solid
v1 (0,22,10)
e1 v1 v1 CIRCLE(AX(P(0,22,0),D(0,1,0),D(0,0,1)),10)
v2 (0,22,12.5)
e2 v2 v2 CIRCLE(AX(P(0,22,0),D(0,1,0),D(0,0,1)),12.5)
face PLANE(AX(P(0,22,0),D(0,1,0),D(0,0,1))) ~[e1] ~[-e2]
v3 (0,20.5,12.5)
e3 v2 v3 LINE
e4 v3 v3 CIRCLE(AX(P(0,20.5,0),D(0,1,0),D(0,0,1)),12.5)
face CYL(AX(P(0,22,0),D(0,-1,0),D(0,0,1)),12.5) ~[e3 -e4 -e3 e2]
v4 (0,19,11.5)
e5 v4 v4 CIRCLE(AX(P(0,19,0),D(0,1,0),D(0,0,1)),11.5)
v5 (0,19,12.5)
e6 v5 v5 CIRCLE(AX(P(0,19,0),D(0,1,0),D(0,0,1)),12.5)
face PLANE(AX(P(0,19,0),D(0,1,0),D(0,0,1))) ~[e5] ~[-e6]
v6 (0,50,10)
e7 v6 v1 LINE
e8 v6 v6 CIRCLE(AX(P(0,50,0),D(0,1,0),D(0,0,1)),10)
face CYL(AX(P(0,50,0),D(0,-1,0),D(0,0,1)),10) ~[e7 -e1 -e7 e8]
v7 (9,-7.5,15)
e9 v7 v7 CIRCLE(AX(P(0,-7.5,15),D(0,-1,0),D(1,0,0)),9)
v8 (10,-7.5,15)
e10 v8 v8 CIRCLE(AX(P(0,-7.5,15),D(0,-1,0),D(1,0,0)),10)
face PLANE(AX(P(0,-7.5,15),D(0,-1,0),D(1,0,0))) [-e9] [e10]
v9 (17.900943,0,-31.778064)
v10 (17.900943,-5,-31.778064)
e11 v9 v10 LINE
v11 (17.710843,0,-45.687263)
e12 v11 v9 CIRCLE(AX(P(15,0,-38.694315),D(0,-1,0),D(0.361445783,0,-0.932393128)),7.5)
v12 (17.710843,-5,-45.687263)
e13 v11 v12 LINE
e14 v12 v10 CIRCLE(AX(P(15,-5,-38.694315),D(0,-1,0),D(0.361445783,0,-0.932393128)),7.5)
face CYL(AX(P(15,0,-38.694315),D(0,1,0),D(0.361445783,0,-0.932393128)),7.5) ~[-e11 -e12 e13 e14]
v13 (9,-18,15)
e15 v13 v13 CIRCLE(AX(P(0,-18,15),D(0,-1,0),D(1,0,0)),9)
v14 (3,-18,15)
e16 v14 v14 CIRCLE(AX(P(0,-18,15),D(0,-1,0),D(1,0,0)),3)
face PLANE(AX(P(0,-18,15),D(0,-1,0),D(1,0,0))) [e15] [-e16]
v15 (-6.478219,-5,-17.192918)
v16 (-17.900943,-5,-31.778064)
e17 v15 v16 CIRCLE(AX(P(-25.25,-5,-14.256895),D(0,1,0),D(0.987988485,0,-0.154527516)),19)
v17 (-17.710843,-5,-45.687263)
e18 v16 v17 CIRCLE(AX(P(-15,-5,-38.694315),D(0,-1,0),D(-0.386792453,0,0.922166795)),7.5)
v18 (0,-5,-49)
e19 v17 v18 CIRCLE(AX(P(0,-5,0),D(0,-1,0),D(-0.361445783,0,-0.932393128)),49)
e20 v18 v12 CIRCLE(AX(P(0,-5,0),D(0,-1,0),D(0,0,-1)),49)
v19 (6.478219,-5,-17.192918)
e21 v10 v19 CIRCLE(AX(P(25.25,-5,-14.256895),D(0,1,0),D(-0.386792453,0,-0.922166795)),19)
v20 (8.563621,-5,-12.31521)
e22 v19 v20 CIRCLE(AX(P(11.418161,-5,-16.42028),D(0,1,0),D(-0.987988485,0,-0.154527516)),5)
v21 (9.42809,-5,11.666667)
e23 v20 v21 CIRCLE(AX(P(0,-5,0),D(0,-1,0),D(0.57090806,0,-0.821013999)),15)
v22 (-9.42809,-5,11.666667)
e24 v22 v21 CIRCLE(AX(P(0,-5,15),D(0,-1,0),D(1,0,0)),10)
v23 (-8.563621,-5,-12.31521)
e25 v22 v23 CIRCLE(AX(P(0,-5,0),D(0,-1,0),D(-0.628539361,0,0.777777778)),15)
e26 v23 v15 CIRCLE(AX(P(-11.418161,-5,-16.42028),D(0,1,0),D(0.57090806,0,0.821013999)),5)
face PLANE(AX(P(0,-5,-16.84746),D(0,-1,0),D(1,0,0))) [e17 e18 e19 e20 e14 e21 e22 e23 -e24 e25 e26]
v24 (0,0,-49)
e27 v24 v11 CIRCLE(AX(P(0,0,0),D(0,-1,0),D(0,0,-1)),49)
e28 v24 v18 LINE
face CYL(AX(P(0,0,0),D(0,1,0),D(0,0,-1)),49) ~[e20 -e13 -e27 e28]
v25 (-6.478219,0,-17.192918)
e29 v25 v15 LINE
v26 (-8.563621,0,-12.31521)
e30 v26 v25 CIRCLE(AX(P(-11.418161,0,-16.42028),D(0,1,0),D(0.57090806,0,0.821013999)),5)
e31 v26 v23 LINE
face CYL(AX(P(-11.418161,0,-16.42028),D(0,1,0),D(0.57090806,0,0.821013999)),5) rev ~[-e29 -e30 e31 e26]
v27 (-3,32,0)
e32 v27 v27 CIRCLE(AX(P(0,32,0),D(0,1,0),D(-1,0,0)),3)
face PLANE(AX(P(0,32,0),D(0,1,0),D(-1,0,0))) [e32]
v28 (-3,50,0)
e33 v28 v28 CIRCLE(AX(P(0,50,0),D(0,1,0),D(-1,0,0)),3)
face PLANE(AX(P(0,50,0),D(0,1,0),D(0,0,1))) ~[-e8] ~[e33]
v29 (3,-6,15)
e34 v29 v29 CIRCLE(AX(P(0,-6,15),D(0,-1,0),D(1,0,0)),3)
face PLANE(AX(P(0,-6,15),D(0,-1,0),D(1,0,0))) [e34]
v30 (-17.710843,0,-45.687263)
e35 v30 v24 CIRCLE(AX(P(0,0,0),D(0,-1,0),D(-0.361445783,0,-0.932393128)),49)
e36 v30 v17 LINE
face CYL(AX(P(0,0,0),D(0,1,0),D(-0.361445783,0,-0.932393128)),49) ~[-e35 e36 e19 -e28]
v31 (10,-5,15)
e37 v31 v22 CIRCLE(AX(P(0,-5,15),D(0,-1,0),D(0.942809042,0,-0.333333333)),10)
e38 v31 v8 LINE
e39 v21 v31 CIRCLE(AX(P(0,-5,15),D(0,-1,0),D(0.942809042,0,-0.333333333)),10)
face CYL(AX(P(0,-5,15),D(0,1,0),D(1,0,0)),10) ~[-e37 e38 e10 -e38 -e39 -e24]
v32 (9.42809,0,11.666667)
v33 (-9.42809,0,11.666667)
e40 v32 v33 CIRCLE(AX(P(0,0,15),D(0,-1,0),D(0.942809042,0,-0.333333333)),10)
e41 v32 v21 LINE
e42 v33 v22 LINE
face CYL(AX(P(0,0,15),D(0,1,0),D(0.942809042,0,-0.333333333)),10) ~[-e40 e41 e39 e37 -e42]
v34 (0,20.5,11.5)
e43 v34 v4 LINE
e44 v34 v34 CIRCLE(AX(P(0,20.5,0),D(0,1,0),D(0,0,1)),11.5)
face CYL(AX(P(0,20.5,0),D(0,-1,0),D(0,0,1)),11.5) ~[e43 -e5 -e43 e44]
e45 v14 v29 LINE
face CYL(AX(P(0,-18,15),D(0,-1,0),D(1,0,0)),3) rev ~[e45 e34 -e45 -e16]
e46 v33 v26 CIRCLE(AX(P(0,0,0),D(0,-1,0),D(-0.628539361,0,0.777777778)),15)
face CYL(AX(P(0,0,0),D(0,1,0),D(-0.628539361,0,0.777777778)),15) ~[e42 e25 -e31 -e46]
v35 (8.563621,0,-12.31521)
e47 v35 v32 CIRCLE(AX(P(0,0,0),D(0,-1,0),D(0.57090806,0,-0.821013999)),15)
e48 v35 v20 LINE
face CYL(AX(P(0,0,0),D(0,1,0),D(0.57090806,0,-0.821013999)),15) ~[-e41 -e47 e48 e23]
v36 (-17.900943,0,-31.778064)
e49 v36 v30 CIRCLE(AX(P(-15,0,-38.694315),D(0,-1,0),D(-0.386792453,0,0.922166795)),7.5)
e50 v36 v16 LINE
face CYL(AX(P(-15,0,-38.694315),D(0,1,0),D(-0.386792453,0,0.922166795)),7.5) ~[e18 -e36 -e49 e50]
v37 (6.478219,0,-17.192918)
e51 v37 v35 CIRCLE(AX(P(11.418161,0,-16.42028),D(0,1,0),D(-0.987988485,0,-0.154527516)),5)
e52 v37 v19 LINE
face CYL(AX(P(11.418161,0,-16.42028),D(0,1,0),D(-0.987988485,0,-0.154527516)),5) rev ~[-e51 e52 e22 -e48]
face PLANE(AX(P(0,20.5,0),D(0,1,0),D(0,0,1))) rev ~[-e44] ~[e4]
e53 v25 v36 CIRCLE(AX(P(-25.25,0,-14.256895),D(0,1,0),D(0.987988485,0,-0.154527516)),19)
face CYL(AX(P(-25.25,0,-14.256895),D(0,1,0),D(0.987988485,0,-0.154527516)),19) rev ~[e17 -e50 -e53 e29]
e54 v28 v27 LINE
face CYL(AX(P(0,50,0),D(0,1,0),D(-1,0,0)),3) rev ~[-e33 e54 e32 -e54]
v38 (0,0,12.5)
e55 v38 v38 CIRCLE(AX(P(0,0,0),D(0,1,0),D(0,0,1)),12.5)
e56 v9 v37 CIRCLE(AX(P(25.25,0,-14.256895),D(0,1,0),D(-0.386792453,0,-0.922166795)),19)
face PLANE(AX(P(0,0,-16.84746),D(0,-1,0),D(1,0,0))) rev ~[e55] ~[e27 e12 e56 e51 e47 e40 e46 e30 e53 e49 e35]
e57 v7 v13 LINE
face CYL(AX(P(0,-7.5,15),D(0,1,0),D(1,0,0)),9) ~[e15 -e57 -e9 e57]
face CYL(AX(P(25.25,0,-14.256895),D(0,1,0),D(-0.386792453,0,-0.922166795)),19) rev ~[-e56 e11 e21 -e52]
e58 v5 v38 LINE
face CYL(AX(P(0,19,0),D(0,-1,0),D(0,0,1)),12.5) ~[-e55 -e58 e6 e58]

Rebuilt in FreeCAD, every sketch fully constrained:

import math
import FreeCAD as App
import Part
import Sketcher

V = App.Vector

doc = App.newDocument("Part")
body = doc.addObject("PartDesign::Body", "Body")

# Sketch on YZ plane
sketch1 = doc.addObject("Sketcher::SketchObject", "Sketch")
body.addObject(sketch1)
sketch1.AttachmentSupport = (doc.YZ_Plane, [""])
sketch1.MapMode = "FlatFace"
sketch1.addGeometry([
    Part.LineSegment(V(19, 12.5, 0), V(0, 12.5, 0)),  # 0
    Part.LineSegment(V(0, 12.5, 0), V(0, 0, 0)),  # 1
    Part.LineSegment(V(0, 0, 0), V(50, 0, 0)),  # 2
    Part.LineSegment(V(50, 0, 0), V(50, 10, 0)),  # 3
    Part.LineSegment(V(50, 10, 0), V(22, 10, 0)),  # 4
    Part.LineSegment(V(22, 10, 0), V(22, 12.5, 0)),  # 5
    Part.LineSegment(V(22, 12.5, 0), V(20.5, 12.5, 0)),  # 6
    Part.LineSegment(V(20.5, 12.5, 0), V(20.5, 11.5, 0)),  # 7
    Part.LineSegment(V(20.5, 11.5, 0), V(19, 11.5, 0)),  # 8
    Part.LineSegment(V(19, 11.5, 0), V(19, 12.5, 0)),  # 9
], False)
sketch1.addConstraint([
    Sketcher.Constraint("Coincident", 0, 2, 1, 1),
    Sketcher.Constraint("Coincident", 1, 2, 2, 1),
    Sketcher.Constraint("Coincident", 2, 2, 3, 1),
    Sketcher.Constraint("Coincident", 3, 2, 4, 1),
    Sketcher.Constraint("Coincident", 4, 2, 5, 1),
    Sketcher.Constraint("Coincident", 5, 2, 6, 1),
    Sketcher.Constraint("Coincident", 6, 2, 7, 1),
    Sketcher.Constraint("Coincident", 7, 2, 8, 1),
    Sketcher.Constraint("Coincident", 8, 2, 9, 1),
    Sketcher.Constraint("Coincident", 9, 2, 0, 1),
    Sketcher.Constraint("Horizontal", 0),
    Sketcher.Constraint("Vertical", 1),
    Sketcher.Constraint("Horizontal", 2),
    Sketcher.Constraint("Vertical", 3),
    Sketcher.Constraint("Horizontal", 4),
    Sketcher.Constraint("Vertical", 5),
    Sketcher.Constraint("Horizontal", 6),
    Sketcher.Constraint("Vertical", 7),
    Sketcher.Constraint("Horizontal", 8),
    Sketcher.Constraint("Vertical", 9),
    Sketcher.Constraint("Coincident", 1, 2, -1, 1),
    Sketcher.Constraint("Horizontal", 0, 2, 5, 2),
    Sketcher.Constraint("Equal", 6, 8),
    Sketcher.Constraint("DistanceX", 0, 2, 0, 1, 19.0),
    Sketcher.Constraint("DistanceX", 2, 1, 2, 2, 50.0),
    Sketcher.Constraint("DistanceX", 4, 2, 4, 1, 28.0),
    Sketcher.Constraint("DistanceY", 3, 1, 3, 2, 10.0),
    Sketcher.Constraint("DistanceY", 7, 2, 7, 1, 1.0),
    Sketcher.Constraint("DistanceY", 1, 2, 1, 1, 12.5),
])
revolution = doc.addObject("PartDesign::Revolution", "Revolution")
body.addObject(revolution)
revolution.Profile = sketch1
revolution.ReferenceAxis = (sketch1, ["H_Axis"])
revolution.Angle = 360

# Sketch on XZ plane
sketch2 = doc.addObject("Sketcher::SketchObject", "Sketch001")
body.addObject(sketch2)
sketch2.AttachmentSupport = (doc.XZ_Plane, [""])
sketch2.MapMode = "FlatFace"
sketch2.addGeometry([
    Part.ArcOfCircle(Part.Circle(V(0, 15, 0), V(0, 0, 1), 10), math.radians(-19.471221), math.radians(199.471221)),  # 0
    Part.ArcOfCircle(Part.Circle(V(0, 0, 0), V(0, 0, 1), 15), math.radians(128.942441), math.radians(235.186428)),  # 1
    Part.ArcOfCircle(Part.Circle(V(-11.418161, -16.42028, 0), V(0, 0, 1), 5), math.radians(-8.889395), math.radians(55.186428)),  # 2
    Part.ArcOfCircle(Part.Circle(V(-25.25, -14.256895, 0), V(0, 0, 1), 19), math.radians(-67.244937), math.radians(-8.889395)),  # 3
    Part.ArcOfCircle(Part.Circle(V(-15, -38.694315, 0), V(0, 0, 1), 7.5), math.radians(112.755063), math.radians(248.810987)),  # 4
    Part.ArcOfCircle(Part.Circle(V(0, 0, 0), V(0, 0, 1), 49), math.radians(-111.189013), math.radians(-90)),  # 5
    Part.ArcOfCircle(Part.Circle(V(0, 0, 0), V(0, 0, 1), 49), math.radians(-90), math.radians(-68.810987)),  # 6
    Part.ArcOfCircle(Part.Circle(V(15, -38.694315, 0), V(0, 0, 1), 7.5), math.radians(-68.810987), math.radians(67.244937)),  # 7
    Part.ArcOfCircle(Part.Circle(V(25.25, -14.256895, 0), V(0, 0, 1), 19), math.radians(-171.110605), math.radians(-112.755063)),  # 8
    Part.ArcOfCircle(Part.Circle(V(11.418161, -16.42028, 0), V(0, 0, 1), 5), math.radians(124.813572), math.radians(188.889395)),  # 9
    Part.ArcOfCircle(Part.Circle(V(0, 0, 0), V(0, 0, 1), 15), math.radians(-55.186428), math.radians(51.057559)),  # 10
], False)
sketch2.addConstraint([
    Sketcher.Constraint("Coincident", 0, 2, 1, 1),
    Sketcher.Constraint("Tangent", 1, 2, 2, 2),
    Sketcher.Constraint("Tangent", 2, 1, 3, 2),
    Sketcher.Constraint("Tangent", 3, 1, 4, 1),
    Sketcher.Constraint("Tangent", 4, 2, 5, 1),
    Sketcher.Constraint("Tangent", 5, 2, 6, 1),
    Sketcher.Constraint("Tangent", 6, 2, 7, 1),
    Sketcher.Constraint("Tangent", 7, 2, 8, 2),
    Sketcher.Constraint("Tangent", 8, 1, 9, 2),
    Sketcher.Constraint("Tangent", 9, 1, 10, 1),
    Sketcher.Constraint("Coincident", 10, 2, 0, 1),
    Sketcher.Constraint("Coincident", 1, 3, -1, 1),
    Sketcher.Constraint("Coincident", 5, 3, -1, 1),
    Sketcher.Constraint("Coincident", 10, 3, -1, 1),
    Sketcher.Constraint("Equal", 5, 6),
    Sketcher.Constraint("Equal", 4, 7),
    Sketcher.Constraint("Equal", 3, 8),
    Sketcher.Constraint("Equal", 2, 9),
    Sketcher.Constraint("Equal", 1, 10),
    Sketcher.Constraint("Symmetric", 3, 3, 8, 3, -2),
    Sketcher.Constraint("PointOnObject", 0, 3, -2),
    Sketcher.Constraint("PointOnObject", 5, 2, -2),
    Sketcher.Constraint("Radius", 0, 10.0),
    Sketcher.Constraint("Radius", 1, 15.0),
    Sketcher.Constraint("Radius", 2, 5.0),
    Sketcher.Constraint("Radius", 3, 19.0),
    Sketcher.Constraint("Radius", 5, 49.0),
    Sketcher.Constraint("Radius", 4, 7.5),
    Sketcher.Constraint("DistanceY", -1, 1, 0, 3, 15.0),
    Sketcher.Constraint("DistanceX", 4, 3, -1, 1, 15.0),
    Sketcher.Constraint("DistanceX", 3, 3, -1, 1, 25.25),
])
pad1 = doc.addObject("PartDesign::Pad", "Pad")
body.addObject(pad1)
pad1.Profile = sketch2
pad1.Length = 5

# Sketch on XZ plane
sketch3 = doc.addObject("Sketcher::SketchObject", "Sketch002")
body.addObject(sketch3)
sketch3.AttachmentSupport = (doc.XZ_Plane, [""])
sketch3.MapMode = "FlatFace"
sketch3.AttachmentOffset = App.Placement(V(0, 0, 5), App.Rotation())
sketch3.addGeometry(Part.Circle(V(0, 15, 0), V(0, 0, 1), 10), False)
sketch3.addConstraint([
    Sketcher.Constraint("PointOnObject", 0, 3, -2),
    Sketcher.Constraint("Diameter", 0, 20.0),
    Sketcher.Constraint("DistanceY", -1, 1, 0, 3, 15.0),
])
pad2 = doc.addObject("PartDesign::Pad", "Pad001")
body.addObject(pad2)
pad2.Profile = sketch3
pad2.Length = 2.5

# Sketch on XZ plane
sketch4 = doc.addObject("Sketcher::SketchObject", "Sketch003")
body.addObject(sketch4)
sketch4.AttachmentSupport = (doc.XZ_Plane, [""])
sketch4.MapMode = "FlatFace"
sketch4.AttachmentOffset = App.Placement(V(0, 0, 7.5), App.Rotation())
sketch4.addGeometry(Part.Circle(V(0, 15, 0), V(0, 0, 1), 9), False)
sketch4.addConstraint([
    Sketcher.Constraint("PointOnObject", 0, 3, -2),
    Sketcher.Constraint("Diameter", 0, 18.0),
    Sketcher.Constraint("DistanceY", -1, 1, 0, 3, 15.0),
])
pad3 = doc.addObject("PartDesign::Pad", "Pad002")
body.addObject(pad3)
pad3.Profile = sketch4
pad3.Length = 10.5

# Sketch on XZ plane
sketch5 = doc.addObject("Sketcher::SketchObject", "Sketch004")
body.addObject(sketch5)
sketch5.AttachmentSupport = (doc.XZ_Plane, [""])
sketch5.MapMode = "FlatFace"
sketch5.AttachmentOffset = App.Placement(V(0, 0, 18), App.Rotation())
sketch5.addGeometry(Part.Circle(V(0, 15, 0), V(0, 0, 1), 3), False)
sketch5.addConstraint([
    Sketcher.Constraint("PointOnObject", 0, 3, -2),
    Sketcher.Constraint("Diameter", 0, 6.0),
    Sketcher.Constraint("DistanceY", -1, 1, 0, 3, 15.0),
])
pocket1 = doc.addObject("PartDesign::Pocket", "Pocket")
body.addObject(pocket1)
pocket1.Profile = sketch5
pocket1.Length = 12

# Sketch on XZ plane
sketch6 = doc.addObject("Sketcher::SketchObject", "Sketch005")
body.addObject(sketch6)
sketch6.AttachmentSupport = (doc.XZ_Plane, [""])
sketch6.MapMode = "FlatFace"
sketch6.AttachmentOffset = App.Placement(V(0, 0, -50), App.Rotation())
sketch6.addGeometry(Part.Circle(V(0, 0, 0), V(0, 0, 1), 3), False)
sketch6.addConstraint([
    Sketcher.Constraint("Coincident", 0, 3, -1, 1),
    Sketcher.Constraint("Diameter", 0, 6.0),
])
pocket2 = doc.addObject("PartDesign::Pocket", "Pocket001")
body.addObject(pocket2)
pocket2.Profile = sketch6
pocket2.Length = 18
pocket2.Reversed = True

doc.recompute()
